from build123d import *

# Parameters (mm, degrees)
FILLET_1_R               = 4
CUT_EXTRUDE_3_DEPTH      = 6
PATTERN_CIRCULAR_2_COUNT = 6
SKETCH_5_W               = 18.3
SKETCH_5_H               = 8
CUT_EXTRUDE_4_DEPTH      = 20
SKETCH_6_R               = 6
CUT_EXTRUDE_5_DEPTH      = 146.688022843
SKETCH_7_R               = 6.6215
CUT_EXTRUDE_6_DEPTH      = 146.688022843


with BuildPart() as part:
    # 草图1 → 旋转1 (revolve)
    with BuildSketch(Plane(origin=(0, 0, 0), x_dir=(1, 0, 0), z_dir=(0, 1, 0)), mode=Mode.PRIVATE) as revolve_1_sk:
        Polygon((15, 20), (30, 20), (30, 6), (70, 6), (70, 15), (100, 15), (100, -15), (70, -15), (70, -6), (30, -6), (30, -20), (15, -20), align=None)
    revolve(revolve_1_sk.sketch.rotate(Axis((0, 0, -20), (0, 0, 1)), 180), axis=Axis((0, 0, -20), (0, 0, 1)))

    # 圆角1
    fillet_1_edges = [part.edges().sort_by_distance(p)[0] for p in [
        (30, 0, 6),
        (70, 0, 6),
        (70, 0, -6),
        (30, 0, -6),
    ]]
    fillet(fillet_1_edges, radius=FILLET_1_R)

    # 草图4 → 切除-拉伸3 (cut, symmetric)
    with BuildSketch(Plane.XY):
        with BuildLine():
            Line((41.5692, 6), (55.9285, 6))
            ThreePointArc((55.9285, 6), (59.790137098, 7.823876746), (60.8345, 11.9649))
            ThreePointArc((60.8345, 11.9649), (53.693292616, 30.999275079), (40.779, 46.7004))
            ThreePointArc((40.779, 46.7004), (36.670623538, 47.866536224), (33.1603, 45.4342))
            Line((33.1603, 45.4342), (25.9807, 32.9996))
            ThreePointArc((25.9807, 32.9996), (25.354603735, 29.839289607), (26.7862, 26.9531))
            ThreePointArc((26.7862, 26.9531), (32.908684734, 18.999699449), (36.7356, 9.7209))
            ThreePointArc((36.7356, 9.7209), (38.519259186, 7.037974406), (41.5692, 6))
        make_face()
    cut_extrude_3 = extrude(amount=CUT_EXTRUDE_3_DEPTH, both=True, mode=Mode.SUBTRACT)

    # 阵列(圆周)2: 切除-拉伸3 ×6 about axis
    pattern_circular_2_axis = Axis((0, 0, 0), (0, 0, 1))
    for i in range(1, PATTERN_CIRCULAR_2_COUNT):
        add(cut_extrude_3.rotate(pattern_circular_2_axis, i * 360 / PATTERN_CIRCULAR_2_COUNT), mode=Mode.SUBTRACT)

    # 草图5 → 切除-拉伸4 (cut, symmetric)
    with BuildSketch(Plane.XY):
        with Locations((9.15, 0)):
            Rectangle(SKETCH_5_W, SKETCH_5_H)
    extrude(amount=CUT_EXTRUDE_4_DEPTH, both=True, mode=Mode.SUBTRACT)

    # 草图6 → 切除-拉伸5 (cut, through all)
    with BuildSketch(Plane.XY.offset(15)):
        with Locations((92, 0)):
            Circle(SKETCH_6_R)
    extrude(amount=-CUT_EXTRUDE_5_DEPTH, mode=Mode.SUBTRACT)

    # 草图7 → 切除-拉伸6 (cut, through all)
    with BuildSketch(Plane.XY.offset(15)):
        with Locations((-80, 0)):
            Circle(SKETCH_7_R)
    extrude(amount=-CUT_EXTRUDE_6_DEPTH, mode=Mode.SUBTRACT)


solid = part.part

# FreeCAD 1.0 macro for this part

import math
import FreeCAD as App
import Part
import Sketcher
Q = App.Units.Quantity


def edges_at(feature, points):
    """Names of the edges that pass closest to the given points."""
    edges = feature.Shape.Edges
    near = lambda p: min(range(len(edges)), key=lambda i: edges[i].distToShape(Part.Vertex(*p))[0])
    return sorted({f"Edge{near(p) + 1}" for p in points})

doc = App.newDocument("Part")
params = doc.addObject("Spreadsheet::Sheet", "Params")
for row, (alias, value) in enumerate([
    ("sketch1_width", "15 mm"),
    ("sketch1_width2", "40 mm"),
    ("sketch1_width3", "30 mm"),
    ("sketch1_height", "14 mm"),
    ("revolution_angle", "360 deg"),
    ("fillet_radius", "4 mm"),
    ("pocket1_length", "12 mm"),
    ("sketch3_height", "8 mm"),
    ("sketch3_width", "18.3 mm"),
    ("pocket2_length", "40 mm"),
    ("sketch4_diameter", "12 mm"),
], start=1):
    params.set(f"A{row}", alias)
    params.set(f"B{row}", "=" + value)
    params.setAlias(f"B{row}", alias)

body = doc.addObject("PartDesign::Body", "Body")

# Sketch on XZ plane
sketch1 = body.newObject("Sketcher::SketchObject", "Sketch")
sketch1.AttachmentSupport = (doc.getObject("XZ_Plane"), [""])
sketch1.MapMode = "FlatFace"
sketch1.addGeometry([
    Part.LineSegment(App.Vector(30, -20, 0), App.Vector(15, -20, 0)),  # 0
    Part.LineSegment(App.Vector(15, -20, 0), App.Vector(15, 20, 0)),  # 1
    Part.LineSegment(App.Vector(15, 20, 0), App.Vector(30, 20, 0)),  # 2
    Part.LineSegment(App.Vector(30, 20, 0), App.Vector(30, 6, 0)),  # 3
    Part.LineSegment(App.Vector(30, 6, 0), App.Vector(70, 6, 0)),  # 4
    Part.LineSegment(App.Vector(70, 6, 0), App.Vector(70, 15, 0)),  # 5
    Part.LineSegment(App.Vector(70, 15, 0), App.Vector(100, 15, 0)),  # 6
    Part.LineSegment(App.Vector(100, 15, 0), App.Vector(100, -15, 0)),  # 7
    Part.LineSegment(App.Vector(100, -15, 0), App.Vector(70, -15, 0)),  # 8
    Part.LineSegment(App.Vector(70, -15, 0), App.Vector(70, -6, 0)),  # 9
    Part.LineSegment(App.Vector(70, -6, 0), App.Vector(30, -6, 0)),  # 10
    Part.LineSegment(App.Vector(30, -6, 0), App.Vector(30, -20, 0)),  # 11
], False)
sketch1.addConstraint([
    Sketcher.Constraint("Coincident", 0, 2, 1, 1),
    Sketcher.Constraint("Coincident", 1, 2, 2, 1),
    Sketcher.Constraint("Coincident", 2, 2, 3, 1),
    Sketcher.Constraint("Coincident", 3, 2, 4, 1),
    Sketcher.Constraint("Coincident", 4, 2, 5, 1),
    Sketcher.Constraint("Coincident", 5, 2, 6, 1),
    Sketcher.Constraint("Coincident", 6, 2, 7, 1),
    Sketcher.Constraint("Coincident", 7, 2, 8, 1),
    Sketcher.Constraint("Coincident", 8, 2, 9, 1),
    Sketcher.Constraint("Coincident", 9, 2, 10, 1),
    Sketcher.Constraint("Coincident", 10, 2, 11, 1),
    Sketcher.Constraint("Coincident", 11, 2, 0, 1),
    Sketcher.Constraint("Horizontal", 0),
    Sketcher.Constraint("Vertical", 1),
    Sketcher.Constraint("Horizontal", 2),
    Sketcher.Constraint("Vertical", 3),
    Sketcher.Constraint("Horizontal", 4),
    Sketcher.Constraint("Vertical", 5),
    Sketcher.Constraint("Horizontal", 6),
    Sketcher.Constraint("Vertical", 7),
    Sketcher.Constraint("Horizontal", 8),
    Sketcher.Constraint("Vertical", 9),
    Sketcher.Constraint("Horizontal", 10),
    Sketcher.Constraint("Vertical", 11),
    Sketcher.Constraint("Symmetric", 5, 2, 8, 2, -1),
    Sketcher.Constraint("Symmetric", 3, 2, 10, 2, -1),
    Sketcher.Constraint("Equal", 10, 1),
    Sketcher.Constraint("Equal", 8, 7),
    Sketcher.Constraint("Equal", 3, 11),
    Sketcher.Constraint("DistanceX", 0, 2, 0, 1, Q("15 mm")),
    Sketcher.Constraint("DistanceX", 4, 1, 4, 2, Q("40 mm")),
    Sketcher.Constraint("DistanceX", 6, 1, 6, 2, Q("30 mm")),
    Sketcher.Constraint("DistanceY", 3, 2, 3, 1, Q("14 mm")),
    Sketcher.Constraint("DistanceX", -1, 1, 0, 2, Q("15 mm")),
])
sketch1.setExpression("Constraints[29]", "Params.sketch1_width")
sketch1.setExpression("Constraints[30]", "Params.sketch1_width2")
sketch1.setExpression("Constraints[31]", "Params.sketch1_width3")
sketch1.setExpression("Constraints[32]", "Params.sketch1_height")
revolution = body.newObject("PartDesign::Revolution", "Revolution")
revolution.Profile = sketch1
revolution.ReferenceAxis = (sketch1, ["V_Axis"])
revolution.setExpression("Angle", "Params.revolution_angle")
doc.recompute()

fillet = body.newObject("PartDesign::Fillet", "Fillet")
fillet.Base = (revolution, edges_at(revolution, [
    (30, 0, 6),
    (70, 0, 6),
    (70, 0, -6),
    (30, 0, -6),
]))
fillet.setExpression("Radius", "Params.fillet_radius")

# Sketch on XY plane
sketch2 = body.newObject("Sketcher::SketchObject", "Sketch001")
sketch2.AttachmentSupport = (doc.getObject("XY_Plane"), [""])
sketch2.MapMode = "FlatFace"
sketch2.addGeometry([
    Part.LineSegment(App.Vector(41.5692, 6, 0), App.Vector(55.9285, 6, 0)),  # 0
    Part.ArcOfCircle(Part.Circle(App.Vector(55.928509, 10.999982, 0), App.Vector(0, 0, 1), 4.999982), math.radians(-90.000098), math.radians(11.126997)),  # 1
    Part.ArcOfCircle(Part.Circle(App.Vector(0.000881, -0.001521, 0), App.Vector(0, 0, 1), 61.999391), math.radians(11.12842), math.radians(48.87393)),  # 2
    Part.ArcOfCircle(Part.Circle(App.Vector(37.490338, 42.934333, 0), App.Vector(0, 0, 1), 4.999856), math.radians(48.871396), math.radians(150.000805)),  # 3
    Part.LineSegment(App.Vector(33.1603, 45.4342, 0), App.Vector(25.9807, 32.9996, 0)),  # 4
    Part.ArcOfCircle(Part.Circle(App.Vector(30.310915, 30.499557, 0), App.Vector(0, 0, 1), 5.000098), math.radians(150.000082), math.radians(225.17617)),  # 5
    Part.ArcOfCircle(Part.Circle(App.Vector(-0.004538, -0.003493, 0), App.Vector(0, 0, 1), 38.005283), math.radians(14.825114), math.radians(45.176805)),  # 6
    Part.ArcOfCircle(Part.Circle(App.Vector(41.569245, 11.00003, 0), App.Vector(0, 0, 1), 5.00003), math.radians(-165.177554), math.radians(-90.00052)),  # 7
], False)
sketch2.addConstraint([
    Sketcher.Constraint("Coincident", 0, 2, 1, 1),
    Sketcher.Constraint("Coincident", 1, 2, 2, 1),
    Sketcher.Constraint("Coincident", 2, 2, 3, 1),
    Sketcher.Constraint("Coincident", 3, 2, 4, 1),
    Sketcher.Constraint("Coincident", 4, 2, 5, 1),
    Sketcher.Constraint("Coincident", 5, 2, 6, 2),
    Sketcher.Constraint("Coincident", 6, 1, 7, 1),
    Sketcher.Constraint("Coincident", 7, 2, 0, 1),
    Sketcher.Constraint("Horizontal", 0),
    Sketcher.Constraint("DistanceY", -1, 1, 0, 2, Q("6 mm")),
    Sketcher.Constraint("Radius", 1, Q("4.999982 mm")),
    Sketcher.Constraint("Radius", 2, Q("61.999391 mm")),
    Sketcher.Constraint("Radius", 7, Q("5.00003 mm")),
    Sketcher.Constraint("DistanceX", 0, 1, 0, 2, Q("14.3593 mm")),
    Sketcher.Constraint("DistanceX", -1, 1, 2, 2, Q("40.779 mm")),
    Sketcher.Constraint("Radius", 3, Q("4.999856 mm")),
    Sketcher.Constraint("Radius", 5, Q("5.000098 mm")),
    Sketcher.Constraint("Radius", 6, Q("38.005283 mm")),
    Sketcher.Constraint("DistanceX", 0, 2, 1, 2, Q("4.906 mm")),
    Sketcher.Constraint("DistanceX", -1, 1, 0, 2, Q("55.9285 mm")),
    Sketcher.Constraint("DistanceY", -1, 1, 1, 2, Q("11.9649 mm")),
    Sketcher.Constraint("DistanceY", -1, 1, 2, 2, Q("46.7004 mm")),
    Sketcher.Constraint("DistanceX", -1, 1, 3, 2, Q("33.1603 mm")),
    Sketcher.Constraint("DistanceY", -1, 1, 3, 2, Q("45.4342 mm")),
    Sketcher.Constraint("DistanceX", -1, 1, 4, 2, Q("25.9807 mm")),
    Sketcher.Constraint("DistanceY", -1, 1, 4, 2, Q("32.9996 mm")),
    Sketcher.Constraint("DistanceX", -1, 1, 5, 2, Q("26.7862 mm")),
    Sketcher.Constraint("DistanceY", -1, 1, 5, 2, Q("26.9531 mm")),
    Sketcher.Constraint("DistanceX", -1, 1, 6, 1, Q("36.7356 mm")),
    Sketcher.Constraint("DistanceY", -1, 1, 6, 1, Q("9.7209 mm")),
])
pocket1 = body.newObject("PartDesign::Pocket", "Pocket")
pocket1.Profile = sketch2
pocket1.setExpression("Length", "Params.pocket1_length")
pocket1.Midplane = True
doc.recompute()

polarpattern = body.newObject("PartDesign::PolarPattern", "PolarPattern")
polarpattern.Originals = [pocket1]
polarpattern.Axis = (doc.getObject("Z_Axis"), [""])
polarpattern.Angle = 360
polarpattern.Occurrences = 6
body.Tip = polarpattern

# Sketch on XY plane
sketch3 = body.newObject("Sketcher::SketchObject", "Sketch002")
sketch3.AttachmentSupport = (doc.getObject("XY_Plane"), [""])
sketch3.MapMode = "FlatFace"
sketch3.addGeometry([
    Part.LineSegment(App.Vector(0, 4, 0), App.Vector(0, -4, 0)),
    Part.LineSegment(App.Vector(0, -4, 0), App.Vector(18, -4, 0)),
    Part.LineSegment(App.Vector(18, -4, 0), App.Vector(18, 4, 0)),
    Part.LineSegment(App.Vector(18, 4, 0), App.Vector(0, 4, 0)),
], False)
sketch3.addConstraint([
    Sketcher.Constraint("Coincident", 0, 2, 1, 1),
    Sketcher.Constraint("Coincident", 1, 2, 2, 1),
    Sketcher.Constraint("Coincident", 2, 2, 3, 1),
    Sketcher.Constraint("Coincident", 3, 2, 0, 1),
    Sketcher.Constraint("Vertical", 0),
    Sketcher.Constraint("Horizontal", 1),
    Sketcher.Constraint("Vertical", 2),
    Sketcher.Constraint("Horizontal", 3),
    Sketcher.Constraint("Symmetric", 0, 2, 3, 2, -1, 1),
    Sketcher.Constraint("DistanceY", 0, 2, 0, 1, Q("8 mm")),
    Sketcher.Constraint("DistanceX", 1, 1, 1, 2, Q("18.3 mm")),
])
sketch3.setExpression("Constraints[9]", "Params.sketch3_height")
sketch3.setExpression("Constraints[10]", "Params.sketch3_width")
pocket2 = body.newObject("PartDesign::Pocket", "Pocket001")
pocket2.Profile = sketch3
pocket2.setExpression("Length", "Params.pocket2_length")
pocket2.Midplane = True

# Sketch on XY plane
sketch4 = body.newObject("Sketcher::SketchObject", "Sketch003")
sketch4.AttachmentSupport = (doc.getObject("XY_Plane"), [""])
sketch4.MapMode = "FlatFace"
sketch4.AttachmentOffset = App.Placement(App.Vector(0, 0, 15), App.Rotation())
sketch4.addGeometry(Part.Circle(App.Vector(92, 0, 0), App.Vector(0, 0, 1), 6), False)
sketch4.addConstraint([
    Sketcher.Constraint("PointOnObject", 0, 3, -1),
    Sketcher.Constraint("Diameter", 0, Q("12 mm")),
    Sketcher.Constraint("DistanceX", -1, 1, 0, 3, Q("92 mm")),
])
sketch4.setExpression("Constraints[1]", "Params.sketch4_diameter")
pocket3 = body.newObject("PartDesign::Pocket", "Pocket002")
pocket3.Profile = sketch4
pocket3.Type = "ThroughAll"

# Sketch on XY plane
sketch5 = body.newObject("Sketcher::SketchObject", "Sketch004")
sketch5.AttachmentSupport = (doc.getObject("XY_Plane"), [""])
sketch5.MapMode = "FlatFace"
sketch5.AttachmentOffset = App.Placement(App.Vector(0, 0, 15), App.Rotation())
sketch5.addGeometry(Part.Circle(App.Vector(-80, 0, 0), App.Vector(0, 0, 1), 7), False)
sketch5.addConstraint([
    Sketcher.Constraint("PointOnObject", 0, 3, -1),
    Sketcher.Constraint("Diameter", 0, Q("13.243 mm")),
    Sketcher.Constraint("DistanceX", 0, 3, -1, 1, Q("80 mm")),
])
pocket4 = body.newObject("PartDesign::Pocket", "Pocket003")
pocket4.Profile = sketch5
pocket4.Type = "ThroughAll"

doc.recompute()
